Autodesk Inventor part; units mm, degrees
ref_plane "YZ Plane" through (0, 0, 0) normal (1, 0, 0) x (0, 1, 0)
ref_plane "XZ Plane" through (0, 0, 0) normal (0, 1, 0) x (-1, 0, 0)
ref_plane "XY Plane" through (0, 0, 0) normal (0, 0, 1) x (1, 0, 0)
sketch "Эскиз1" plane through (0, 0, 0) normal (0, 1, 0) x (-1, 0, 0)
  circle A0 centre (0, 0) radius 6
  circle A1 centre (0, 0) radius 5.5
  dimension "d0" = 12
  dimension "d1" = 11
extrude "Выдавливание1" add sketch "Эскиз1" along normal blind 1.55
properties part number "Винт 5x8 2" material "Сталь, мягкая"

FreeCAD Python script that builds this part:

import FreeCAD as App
import Part
import Sketcher
from FreeCAD import Vector
Q = App.Units.Quantity

doc = App.newDocument("Part")
body = doc.addObject("PartDesign::Body", "Body")

sketch1 = doc.addObject("Sketcher::SketchObject", "Sketch")
body.addObject(sketch1)
sketch1.AttachmentSupport = (doc.XZ_Plane, [""])
sketch1.MapMode = "FlatFace"
sketch1.addGeometry([
    Part.Circle(Vector(0, 0, 0), Vector(0, 0, 1), 6),
    Part.Circle(Vector(0, 0, 0), Vector(0, 0, 1), 5.5),
], False)
sketch1.addConstraint([
    Sketcher.Constraint("Coincident", 0, 3, -1, 1),
    Sketcher.Constraint("Coincident", 1, 3, -1, 1),
    Sketcher.Constraint("Diameter", 0, Q("12 mm")),
    Sketcher.Constraint("Diameter", 1, Q("11 mm")),
])
pad1 = doc.addObject("PartDesign::Pad", "Pad")
body.addObject(pad1)
pad1.Profile = sketch1
pad1.Length = 1.55
pad1.Reversed = True

doc.recompute()
